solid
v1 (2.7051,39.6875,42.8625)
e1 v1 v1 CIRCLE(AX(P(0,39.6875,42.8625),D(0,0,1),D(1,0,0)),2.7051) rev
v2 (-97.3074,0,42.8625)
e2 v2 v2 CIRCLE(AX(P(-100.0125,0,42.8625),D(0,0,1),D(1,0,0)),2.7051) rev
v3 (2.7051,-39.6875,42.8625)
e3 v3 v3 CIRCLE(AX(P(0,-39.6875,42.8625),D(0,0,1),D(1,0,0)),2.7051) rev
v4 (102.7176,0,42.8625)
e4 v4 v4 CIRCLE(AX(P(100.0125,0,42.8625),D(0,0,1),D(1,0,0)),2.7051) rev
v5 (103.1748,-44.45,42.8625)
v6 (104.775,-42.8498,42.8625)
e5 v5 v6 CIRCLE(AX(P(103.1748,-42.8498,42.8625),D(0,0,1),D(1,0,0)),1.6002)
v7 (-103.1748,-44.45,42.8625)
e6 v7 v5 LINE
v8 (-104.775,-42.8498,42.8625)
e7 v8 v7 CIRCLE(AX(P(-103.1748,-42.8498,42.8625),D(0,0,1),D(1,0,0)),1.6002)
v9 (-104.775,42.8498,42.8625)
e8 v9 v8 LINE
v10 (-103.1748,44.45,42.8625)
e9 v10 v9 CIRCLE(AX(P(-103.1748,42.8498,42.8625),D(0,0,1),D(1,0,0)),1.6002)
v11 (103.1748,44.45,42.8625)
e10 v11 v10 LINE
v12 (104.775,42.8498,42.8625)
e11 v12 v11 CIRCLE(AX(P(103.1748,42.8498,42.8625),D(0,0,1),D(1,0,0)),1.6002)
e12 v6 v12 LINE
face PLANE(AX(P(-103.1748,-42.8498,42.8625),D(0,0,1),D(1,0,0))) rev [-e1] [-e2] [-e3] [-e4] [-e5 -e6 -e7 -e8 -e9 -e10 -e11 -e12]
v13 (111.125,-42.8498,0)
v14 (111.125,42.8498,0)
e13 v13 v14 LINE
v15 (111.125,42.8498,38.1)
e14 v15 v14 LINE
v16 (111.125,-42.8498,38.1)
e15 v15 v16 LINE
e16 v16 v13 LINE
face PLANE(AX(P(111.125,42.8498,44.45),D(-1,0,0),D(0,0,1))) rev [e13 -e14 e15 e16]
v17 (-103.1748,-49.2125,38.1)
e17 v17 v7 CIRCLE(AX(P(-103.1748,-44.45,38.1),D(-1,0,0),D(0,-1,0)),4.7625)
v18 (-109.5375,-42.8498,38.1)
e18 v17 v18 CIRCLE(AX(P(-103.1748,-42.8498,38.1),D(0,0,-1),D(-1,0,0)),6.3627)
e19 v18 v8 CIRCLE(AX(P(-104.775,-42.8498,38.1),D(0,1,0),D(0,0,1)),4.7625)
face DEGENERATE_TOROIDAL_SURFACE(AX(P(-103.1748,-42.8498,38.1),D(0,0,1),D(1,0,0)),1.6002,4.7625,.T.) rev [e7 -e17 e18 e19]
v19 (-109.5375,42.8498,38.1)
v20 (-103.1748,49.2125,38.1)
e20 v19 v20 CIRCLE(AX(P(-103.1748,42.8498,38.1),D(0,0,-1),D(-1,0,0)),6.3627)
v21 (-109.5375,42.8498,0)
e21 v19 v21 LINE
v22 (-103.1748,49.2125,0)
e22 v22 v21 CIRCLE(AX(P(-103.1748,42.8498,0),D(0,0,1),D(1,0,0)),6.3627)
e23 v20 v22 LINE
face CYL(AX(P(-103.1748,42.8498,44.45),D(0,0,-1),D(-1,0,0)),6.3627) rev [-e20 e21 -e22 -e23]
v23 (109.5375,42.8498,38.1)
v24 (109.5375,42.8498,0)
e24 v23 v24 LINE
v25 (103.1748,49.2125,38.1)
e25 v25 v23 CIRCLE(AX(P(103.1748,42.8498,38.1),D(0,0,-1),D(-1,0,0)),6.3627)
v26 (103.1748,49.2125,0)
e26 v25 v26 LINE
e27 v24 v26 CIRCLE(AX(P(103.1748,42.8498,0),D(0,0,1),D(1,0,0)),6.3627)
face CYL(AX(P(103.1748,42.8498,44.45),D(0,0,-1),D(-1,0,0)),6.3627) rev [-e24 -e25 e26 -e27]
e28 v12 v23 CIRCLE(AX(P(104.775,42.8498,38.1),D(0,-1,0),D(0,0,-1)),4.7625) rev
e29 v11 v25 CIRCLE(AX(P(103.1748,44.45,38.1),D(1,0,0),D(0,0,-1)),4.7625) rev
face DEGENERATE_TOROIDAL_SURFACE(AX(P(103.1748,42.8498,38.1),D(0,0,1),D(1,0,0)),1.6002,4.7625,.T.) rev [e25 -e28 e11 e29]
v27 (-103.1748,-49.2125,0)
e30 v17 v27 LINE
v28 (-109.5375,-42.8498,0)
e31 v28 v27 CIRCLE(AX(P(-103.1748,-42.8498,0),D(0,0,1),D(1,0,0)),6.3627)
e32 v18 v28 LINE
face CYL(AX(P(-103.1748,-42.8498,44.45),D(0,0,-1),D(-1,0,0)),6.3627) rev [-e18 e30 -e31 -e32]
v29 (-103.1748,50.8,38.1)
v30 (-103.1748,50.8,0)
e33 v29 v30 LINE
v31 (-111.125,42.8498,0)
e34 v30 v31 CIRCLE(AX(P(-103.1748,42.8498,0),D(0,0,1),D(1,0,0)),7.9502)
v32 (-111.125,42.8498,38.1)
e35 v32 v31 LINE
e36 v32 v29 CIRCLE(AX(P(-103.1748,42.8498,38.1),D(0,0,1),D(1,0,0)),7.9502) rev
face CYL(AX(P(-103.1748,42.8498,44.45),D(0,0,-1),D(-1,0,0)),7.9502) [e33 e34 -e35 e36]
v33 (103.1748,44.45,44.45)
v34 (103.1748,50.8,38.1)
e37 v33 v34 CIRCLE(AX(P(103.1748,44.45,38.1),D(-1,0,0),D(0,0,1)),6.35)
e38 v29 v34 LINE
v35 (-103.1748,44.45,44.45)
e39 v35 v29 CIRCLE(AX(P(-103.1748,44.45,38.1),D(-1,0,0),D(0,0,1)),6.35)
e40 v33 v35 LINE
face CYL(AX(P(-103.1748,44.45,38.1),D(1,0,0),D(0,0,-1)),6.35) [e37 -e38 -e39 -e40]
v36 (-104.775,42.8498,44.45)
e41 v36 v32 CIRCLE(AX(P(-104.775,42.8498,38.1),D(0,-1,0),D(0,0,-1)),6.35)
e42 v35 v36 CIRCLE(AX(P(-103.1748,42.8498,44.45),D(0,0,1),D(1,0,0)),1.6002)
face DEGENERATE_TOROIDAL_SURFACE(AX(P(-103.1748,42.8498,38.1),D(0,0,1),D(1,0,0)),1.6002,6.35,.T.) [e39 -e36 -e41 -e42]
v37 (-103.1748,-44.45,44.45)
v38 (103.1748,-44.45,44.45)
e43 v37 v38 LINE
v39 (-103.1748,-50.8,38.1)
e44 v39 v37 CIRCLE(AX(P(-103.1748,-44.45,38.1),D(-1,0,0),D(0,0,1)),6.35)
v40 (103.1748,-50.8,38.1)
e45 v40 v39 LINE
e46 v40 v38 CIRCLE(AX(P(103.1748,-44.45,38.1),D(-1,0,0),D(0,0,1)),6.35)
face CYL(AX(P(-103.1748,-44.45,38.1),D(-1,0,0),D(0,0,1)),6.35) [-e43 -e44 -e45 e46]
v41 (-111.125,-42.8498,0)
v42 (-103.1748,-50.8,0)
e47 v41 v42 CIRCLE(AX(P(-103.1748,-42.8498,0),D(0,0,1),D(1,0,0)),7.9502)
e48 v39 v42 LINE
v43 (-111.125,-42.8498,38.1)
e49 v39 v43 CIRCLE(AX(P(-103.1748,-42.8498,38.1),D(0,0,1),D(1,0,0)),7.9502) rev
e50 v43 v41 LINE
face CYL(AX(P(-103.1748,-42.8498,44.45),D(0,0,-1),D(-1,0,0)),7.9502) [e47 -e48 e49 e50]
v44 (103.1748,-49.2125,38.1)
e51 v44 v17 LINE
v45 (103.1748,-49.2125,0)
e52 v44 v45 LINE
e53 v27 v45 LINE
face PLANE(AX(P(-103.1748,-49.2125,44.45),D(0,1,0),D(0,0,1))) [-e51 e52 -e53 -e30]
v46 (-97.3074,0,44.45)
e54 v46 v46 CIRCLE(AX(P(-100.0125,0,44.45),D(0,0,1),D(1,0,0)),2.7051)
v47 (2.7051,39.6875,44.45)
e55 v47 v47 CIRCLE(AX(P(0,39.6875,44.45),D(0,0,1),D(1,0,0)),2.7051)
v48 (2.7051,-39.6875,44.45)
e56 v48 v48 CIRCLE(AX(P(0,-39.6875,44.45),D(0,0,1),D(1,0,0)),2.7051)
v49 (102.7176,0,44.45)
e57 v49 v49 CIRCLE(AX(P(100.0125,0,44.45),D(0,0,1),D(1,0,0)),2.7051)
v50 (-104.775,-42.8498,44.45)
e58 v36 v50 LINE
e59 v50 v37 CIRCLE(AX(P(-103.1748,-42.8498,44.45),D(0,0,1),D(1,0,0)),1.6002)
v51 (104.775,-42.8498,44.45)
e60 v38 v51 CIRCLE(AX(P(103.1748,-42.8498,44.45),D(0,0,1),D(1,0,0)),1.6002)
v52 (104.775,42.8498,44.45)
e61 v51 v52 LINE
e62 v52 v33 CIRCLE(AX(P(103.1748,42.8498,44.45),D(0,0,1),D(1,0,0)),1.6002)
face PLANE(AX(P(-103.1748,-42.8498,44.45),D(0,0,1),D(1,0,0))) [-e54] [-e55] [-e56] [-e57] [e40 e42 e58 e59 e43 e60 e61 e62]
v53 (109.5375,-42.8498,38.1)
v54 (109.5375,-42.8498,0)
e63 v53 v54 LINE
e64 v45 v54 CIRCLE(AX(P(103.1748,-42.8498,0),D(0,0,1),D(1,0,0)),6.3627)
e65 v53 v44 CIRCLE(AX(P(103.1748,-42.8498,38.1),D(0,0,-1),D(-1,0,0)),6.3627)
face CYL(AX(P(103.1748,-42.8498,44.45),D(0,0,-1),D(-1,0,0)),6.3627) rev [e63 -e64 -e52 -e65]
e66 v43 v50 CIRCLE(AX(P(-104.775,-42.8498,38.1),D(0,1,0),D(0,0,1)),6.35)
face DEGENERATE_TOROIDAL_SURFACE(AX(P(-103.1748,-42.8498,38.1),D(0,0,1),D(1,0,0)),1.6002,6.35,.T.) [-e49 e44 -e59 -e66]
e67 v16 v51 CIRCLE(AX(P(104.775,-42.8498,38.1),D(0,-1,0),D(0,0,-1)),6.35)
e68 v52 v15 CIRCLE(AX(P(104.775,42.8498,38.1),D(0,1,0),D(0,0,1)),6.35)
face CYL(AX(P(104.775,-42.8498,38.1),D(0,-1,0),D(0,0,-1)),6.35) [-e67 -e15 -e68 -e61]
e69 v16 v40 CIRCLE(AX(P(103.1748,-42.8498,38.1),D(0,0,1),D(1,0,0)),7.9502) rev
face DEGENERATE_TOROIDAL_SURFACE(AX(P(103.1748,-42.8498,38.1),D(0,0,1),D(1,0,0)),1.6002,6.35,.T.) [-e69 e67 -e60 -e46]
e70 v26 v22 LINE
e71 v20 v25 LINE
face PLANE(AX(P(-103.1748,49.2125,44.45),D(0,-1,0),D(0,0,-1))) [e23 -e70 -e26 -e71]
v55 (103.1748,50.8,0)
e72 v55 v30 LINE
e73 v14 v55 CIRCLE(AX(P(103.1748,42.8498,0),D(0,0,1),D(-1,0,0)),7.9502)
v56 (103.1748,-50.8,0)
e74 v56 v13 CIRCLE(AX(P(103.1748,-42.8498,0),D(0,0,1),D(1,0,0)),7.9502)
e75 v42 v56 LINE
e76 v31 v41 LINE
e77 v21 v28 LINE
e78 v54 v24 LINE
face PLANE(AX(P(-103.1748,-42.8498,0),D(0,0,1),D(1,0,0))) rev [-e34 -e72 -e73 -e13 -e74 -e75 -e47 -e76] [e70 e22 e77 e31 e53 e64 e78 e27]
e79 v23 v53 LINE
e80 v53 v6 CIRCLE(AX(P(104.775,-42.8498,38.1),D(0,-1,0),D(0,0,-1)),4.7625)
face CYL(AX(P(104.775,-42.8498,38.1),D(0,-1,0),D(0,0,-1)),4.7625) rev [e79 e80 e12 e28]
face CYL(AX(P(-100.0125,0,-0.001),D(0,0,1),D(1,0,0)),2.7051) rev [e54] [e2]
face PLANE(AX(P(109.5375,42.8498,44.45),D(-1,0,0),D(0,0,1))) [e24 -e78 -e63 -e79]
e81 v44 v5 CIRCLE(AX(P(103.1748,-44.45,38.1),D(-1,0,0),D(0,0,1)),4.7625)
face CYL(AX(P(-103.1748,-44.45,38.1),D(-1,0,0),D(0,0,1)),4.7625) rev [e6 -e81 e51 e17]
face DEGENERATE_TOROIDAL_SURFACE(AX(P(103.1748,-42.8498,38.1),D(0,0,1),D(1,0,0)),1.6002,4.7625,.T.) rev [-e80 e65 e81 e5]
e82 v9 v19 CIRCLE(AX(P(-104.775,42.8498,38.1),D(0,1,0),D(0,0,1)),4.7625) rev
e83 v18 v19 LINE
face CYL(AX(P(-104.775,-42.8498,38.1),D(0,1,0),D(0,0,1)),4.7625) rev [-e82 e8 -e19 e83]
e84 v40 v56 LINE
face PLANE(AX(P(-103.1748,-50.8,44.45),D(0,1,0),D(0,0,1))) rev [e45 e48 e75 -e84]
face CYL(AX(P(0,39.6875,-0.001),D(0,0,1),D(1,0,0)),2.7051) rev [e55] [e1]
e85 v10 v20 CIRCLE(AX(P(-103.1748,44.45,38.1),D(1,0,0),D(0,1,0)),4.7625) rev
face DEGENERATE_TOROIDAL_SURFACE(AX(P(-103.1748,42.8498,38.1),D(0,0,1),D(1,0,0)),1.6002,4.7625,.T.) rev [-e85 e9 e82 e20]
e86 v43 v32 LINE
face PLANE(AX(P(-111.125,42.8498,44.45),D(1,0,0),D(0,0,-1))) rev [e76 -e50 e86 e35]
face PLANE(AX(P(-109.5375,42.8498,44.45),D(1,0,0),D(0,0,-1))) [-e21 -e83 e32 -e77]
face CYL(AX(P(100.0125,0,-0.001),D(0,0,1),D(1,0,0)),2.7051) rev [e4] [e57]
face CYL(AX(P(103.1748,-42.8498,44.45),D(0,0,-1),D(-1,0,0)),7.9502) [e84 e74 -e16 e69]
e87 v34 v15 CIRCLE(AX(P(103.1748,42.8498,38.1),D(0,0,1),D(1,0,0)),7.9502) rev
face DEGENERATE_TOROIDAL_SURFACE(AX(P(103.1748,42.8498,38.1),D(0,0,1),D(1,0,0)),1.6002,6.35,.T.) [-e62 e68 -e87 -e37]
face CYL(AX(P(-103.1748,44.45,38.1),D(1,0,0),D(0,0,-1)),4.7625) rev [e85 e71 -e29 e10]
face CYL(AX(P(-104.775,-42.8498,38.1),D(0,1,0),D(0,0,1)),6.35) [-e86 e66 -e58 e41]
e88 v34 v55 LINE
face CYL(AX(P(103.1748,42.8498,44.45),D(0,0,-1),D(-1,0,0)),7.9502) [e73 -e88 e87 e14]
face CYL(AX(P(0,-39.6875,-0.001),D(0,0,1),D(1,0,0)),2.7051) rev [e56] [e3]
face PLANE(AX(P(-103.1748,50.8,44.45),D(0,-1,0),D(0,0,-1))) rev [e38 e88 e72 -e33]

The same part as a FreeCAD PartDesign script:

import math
import FreeCAD as App
import Part
import Sketcher
Q = App.Units.Quantity


def edges_at(feature, points):
    """Names of the edges that pass closest to the given points."""
    edges = feature.Shape.Edges
    near = lambda p: min(range(len(edges)), key=lambda i: edges[i].distToShape(Part.Vertex(*p))[0])
    return sorted({f"Edge{near(p) + 1}" for p in points})


def faces_at(feature, points):
    """Names of the faces that lie closest to the given points."""
    faces = feature.Shape.Faces
    near = lambda p: min(range(len(faces)), key=lambda i: faces[i].distToShape(Part.Vertex(*p))[0])
    return sorted({f"Face{near(p) + 1}" for p in points})

doc = App.newDocument("Part")
body = doc.addObject("PartDesign::Body", "Body")

# Sketch on XY plane
sketch1 = body.newObject("Sketcher::SketchObject", "Sketch")
sketch1.AttachmentSupport = (doc.getObject("XY_Plane"), [""])
sketch1.MapMode = "FlatFace"
sketch1.addGeometry(Part.LineSegment(App.Vector(103, 51, 0), App.Vector(-103, 51, 0)), False)
sketch1.addGeometry(Part.ArcOfCircle(Part.Circle(App.Vector(-103, 43, 0), App.Vector(0, 0, 1), 8), math.radians(90), math.radians(180)), False)
sketch1.addGeometry(Part.LineSegment(App.Vector(-111, 43, 0), App.Vector(-111, -43, 0)), False)
sketch1.addGeometry(Part.ArcOfCircle(Part.Circle(App.Vector(-103, -43, 0), App.Vector(0, 0, 1), 8), math.radians(180), math.radians(270)), False)
sketch1.addGeometry(Part.LineSegment(App.Vector(-103, -51, 0), App.Vector(103, -51, 0)), False)
sketch1.addGeometry(Part.ArcOfCircle(Part.Circle(App.Vector(103, -43, 0), App.Vector(0, 0, 1), 8), math.radians(-90), math.radians(0)), False)
sketch1.addGeometry(Part.LineSegment(App.Vector(111, -43, 0), App.Vector(111, 43, 0)), False)
sketch1.addGeometry(Part.ArcOfCircle(Part.Circle(App.Vector(103, 43, 0), App.Vector(0, 0, 1), 8), math.radians(0), math.radians(90)), False)
sketch1.addConstraint(Sketcher.Constraint("Tangent", 0, 2, 1, 1))
sketch1.addConstraint(Sketcher.Constraint("Tangent", 1, 2, 2, 1))
sketch1.addConstraint(Sketcher.Constraint("Tangent", 2, 2, 3, 1))
sketch1.addConstraint(Sketcher.Constraint("Tangent", 3, 2, 4, 1))
sketch1.addConstraint(Sketcher.Constraint("Tangent", 4, 2, 5, 1))
sketch1.addConstraint(Sketcher.Constraint("Tangent", 5, 2, 6, 1))
sketch1.addConstraint(Sketcher.Constraint("Tangent", 6, 2, 7, 1))
sketch1.addConstraint(Sketcher.Constraint("Tangent", 7, 2, 0, 1))
sketch1.addConstraint(Sketcher.Constraint("Horizontal", 0))
sketch1.addConstraint(Sketcher.Constraint("Vertical", 2))
sketch1.addConstraint(Sketcher.Constraint("Horizontal", 4))
sketch1.addConstraint(Sketcher.Constraint("Vertical", 6))
sketch1.addConstraint(Sketcher.Constraint("Equal", 1, 3))
sketch1.addConstraint(Sketcher.Constraint("Equal", 3, 5))
sketch1.addConstraint(Sketcher.Constraint("Equal", 5, 7))
sketch1.addConstraint(Sketcher.Constraint("Symmetric", 1, 3, 5, 3, -1, 1))
sketch1.addConstraint(Sketcher.Constraint("DistanceY", -1, 1, 0, 2, Q("2 in")))
sketch1.addConstraint(Sketcher.Constraint("Radius", 1, Q("0.313 in")))
sketch1.addConstraint(Sketcher.Constraint("DistanceX", 0, 2, 0, 1, Q("8.124 in")))
pad1 = body.newObject("PartDesign::Pad", "Pad")
pad1.Profile = sketch1
pad1.Length = Q("1.75 in")
doc.recompute()

fillet = body.newObject("PartDesign::Fillet", "Fillet")
fillet.Base = (pad1, edges_at(pad1, [
    (108.796, -48.471, 44.45),
    (111.125, 0, 44.45),
    (108.796, 48.471, 44.45),
    (0, 50.8, 44.45),
    (-108.796, 48.471, 44.45),
    (-111.125, 0, 44.45),
    (-108.796, -48.471, 44.45),
    (0, -50.8, 44.45),
]))
fillet.Radius = Q("0.25 in")
doc.recompute()

thickness = body.newObject("PartDesign::Thickness", "Thickness")
thickness.Base = (fillet, faces_at(fillet, [(0, 0, 0)]))
thickness.Value = Q("0.0625 in")
thickness.Reversed = True
thickness.Join = "Intersection"

# Sketch on XY plane
sketch2 = body.newObject("Sketcher::SketchObject", "Sketch001")
sketch2.AttachmentSupport = (doc.getObject("XY_Plane"), [""])
sketch2.MapMode = "FlatFace"
sketch2.AttachmentOffset = App.Placement(App.Vector(0, 0, 1.75 * 25.4), App.Rotation())
sketch2.addGeometry(Part.Circle(App.Vector(0, 39.7, 0), App.Vector(0, 0, 1), 2.7), False)
sketch2.addConstraint(Sketcher.Constraint("PointOnObject", 0, 3, -2))
sketch2.addConstraint(Sketcher.Constraint("Diameter", 0, Q("0.213 in")))
sketch2.addConstraint(Sketcher.Constraint("DistanceY", -1, 1, 0, 3, Q("1.5625 in")))
pocket1 = body.newObject("PartDesign::Pocket", "Pocket")
pocket1.Profile = sketch2
pocket1.Type = "UpToFirst"

# Sketch on XY plane
sketch3 = body.newObject("Sketcher::SketchObject", "Sketch002")
sketch3.AttachmentSupport = (doc.getObject("XY_Plane"), [""])
sketch3.MapMode = "FlatFace"
sketch3.AttachmentOffset = App.Placement(App.Vector(0, 0, 1.75 * 25.4), App.Rotation())
sketch3.addGeometry(Part.Circle(App.Vector(0, -39.7, 0), App.Vector(0, 0, 1), 2.7), False)
sketch3.addConstraint(Sketcher.Constraint("PointOnObject", 0, 3, -2))
sketch3.addConstraint(Sketcher.Constraint("Diameter", 0, Q("0.213 in")))
sketch3.addConstraint(Sketcher.Constraint("DistanceY", 0, 3, -1, 1, Q("1.5625 in")))
pocket2 = body.newObject("PartDesign::Pocket", "Pocket001")
pocket2.Profile = sketch3
pocket2.Type = "UpToFirst"

# Sketch on XY plane
sketch4 = body.newObject("Sketcher::SketchObject", "Sketch003")
sketch4.AttachmentSupport = (doc.getObject("XY_Plane"), [""])
sketch4.MapMode = "FlatFace"
sketch4.AttachmentOffset = App.Placement(App.Vector(0, 0, 1.75 * 25.4), App.Rotation())
sketch4.addGeometry(Part.Circle(App.Vector(100, 0, 0), App.Vector(0, 0, 1), 2.7), False)
sketch4.addConstraint(Sketcher.Constraint("PointOnObject", 0, 3, -1))
sketch4.addConstraint(Sketcher.Constraint("Diameter", 0, Q("0.213 in")))
sketch4.addConstraint(Sketcher.Constraint("DistanceX", -1, 1, 0, 3, Q("3.9375 in")))
pocket3 = body.newObject("PartDesign::Pocket", "Pocket002")
pocket3.Profile = sketch4
pocket3.Type = "UpToFirst"

# Sketch on XY plane
sketch5 = body.newObject("Sketcher::SketchObject", "Sketch004")
sketch5.AttachmentSupport = (doc.getObject("XY_Plane"), [""])
sketch5.MapMode = "FlatFace"
sketch5.AttachmentOffset = App.Placement(App.Vector(0, 0, 1.75 * 25.4), App.Rotation())
sketch5.addGeometry(Part.Circle(App.Vector(-100, 0, 0), App.Vector(0, 0, 1), 2.7), False)
sketch5.addConstraint(Sketcher.Constraint("PointOnObject", 0, 3, -1))
sketch5.addConstraint(Sketcher.Constraint("Diameter", 0, Q("0.213 in")))
sketch5.addConstraint(Sketcher.Constraint("DistanceX", 0, 3, -1, 1, Q("3.9375 in")))
pocket4 = body.newObject("PartDesign::Pocket", "Pocket003")
pocket4.Profile = sketch5
pocket4.Type = "UpToFirst"

doc.recompute()
